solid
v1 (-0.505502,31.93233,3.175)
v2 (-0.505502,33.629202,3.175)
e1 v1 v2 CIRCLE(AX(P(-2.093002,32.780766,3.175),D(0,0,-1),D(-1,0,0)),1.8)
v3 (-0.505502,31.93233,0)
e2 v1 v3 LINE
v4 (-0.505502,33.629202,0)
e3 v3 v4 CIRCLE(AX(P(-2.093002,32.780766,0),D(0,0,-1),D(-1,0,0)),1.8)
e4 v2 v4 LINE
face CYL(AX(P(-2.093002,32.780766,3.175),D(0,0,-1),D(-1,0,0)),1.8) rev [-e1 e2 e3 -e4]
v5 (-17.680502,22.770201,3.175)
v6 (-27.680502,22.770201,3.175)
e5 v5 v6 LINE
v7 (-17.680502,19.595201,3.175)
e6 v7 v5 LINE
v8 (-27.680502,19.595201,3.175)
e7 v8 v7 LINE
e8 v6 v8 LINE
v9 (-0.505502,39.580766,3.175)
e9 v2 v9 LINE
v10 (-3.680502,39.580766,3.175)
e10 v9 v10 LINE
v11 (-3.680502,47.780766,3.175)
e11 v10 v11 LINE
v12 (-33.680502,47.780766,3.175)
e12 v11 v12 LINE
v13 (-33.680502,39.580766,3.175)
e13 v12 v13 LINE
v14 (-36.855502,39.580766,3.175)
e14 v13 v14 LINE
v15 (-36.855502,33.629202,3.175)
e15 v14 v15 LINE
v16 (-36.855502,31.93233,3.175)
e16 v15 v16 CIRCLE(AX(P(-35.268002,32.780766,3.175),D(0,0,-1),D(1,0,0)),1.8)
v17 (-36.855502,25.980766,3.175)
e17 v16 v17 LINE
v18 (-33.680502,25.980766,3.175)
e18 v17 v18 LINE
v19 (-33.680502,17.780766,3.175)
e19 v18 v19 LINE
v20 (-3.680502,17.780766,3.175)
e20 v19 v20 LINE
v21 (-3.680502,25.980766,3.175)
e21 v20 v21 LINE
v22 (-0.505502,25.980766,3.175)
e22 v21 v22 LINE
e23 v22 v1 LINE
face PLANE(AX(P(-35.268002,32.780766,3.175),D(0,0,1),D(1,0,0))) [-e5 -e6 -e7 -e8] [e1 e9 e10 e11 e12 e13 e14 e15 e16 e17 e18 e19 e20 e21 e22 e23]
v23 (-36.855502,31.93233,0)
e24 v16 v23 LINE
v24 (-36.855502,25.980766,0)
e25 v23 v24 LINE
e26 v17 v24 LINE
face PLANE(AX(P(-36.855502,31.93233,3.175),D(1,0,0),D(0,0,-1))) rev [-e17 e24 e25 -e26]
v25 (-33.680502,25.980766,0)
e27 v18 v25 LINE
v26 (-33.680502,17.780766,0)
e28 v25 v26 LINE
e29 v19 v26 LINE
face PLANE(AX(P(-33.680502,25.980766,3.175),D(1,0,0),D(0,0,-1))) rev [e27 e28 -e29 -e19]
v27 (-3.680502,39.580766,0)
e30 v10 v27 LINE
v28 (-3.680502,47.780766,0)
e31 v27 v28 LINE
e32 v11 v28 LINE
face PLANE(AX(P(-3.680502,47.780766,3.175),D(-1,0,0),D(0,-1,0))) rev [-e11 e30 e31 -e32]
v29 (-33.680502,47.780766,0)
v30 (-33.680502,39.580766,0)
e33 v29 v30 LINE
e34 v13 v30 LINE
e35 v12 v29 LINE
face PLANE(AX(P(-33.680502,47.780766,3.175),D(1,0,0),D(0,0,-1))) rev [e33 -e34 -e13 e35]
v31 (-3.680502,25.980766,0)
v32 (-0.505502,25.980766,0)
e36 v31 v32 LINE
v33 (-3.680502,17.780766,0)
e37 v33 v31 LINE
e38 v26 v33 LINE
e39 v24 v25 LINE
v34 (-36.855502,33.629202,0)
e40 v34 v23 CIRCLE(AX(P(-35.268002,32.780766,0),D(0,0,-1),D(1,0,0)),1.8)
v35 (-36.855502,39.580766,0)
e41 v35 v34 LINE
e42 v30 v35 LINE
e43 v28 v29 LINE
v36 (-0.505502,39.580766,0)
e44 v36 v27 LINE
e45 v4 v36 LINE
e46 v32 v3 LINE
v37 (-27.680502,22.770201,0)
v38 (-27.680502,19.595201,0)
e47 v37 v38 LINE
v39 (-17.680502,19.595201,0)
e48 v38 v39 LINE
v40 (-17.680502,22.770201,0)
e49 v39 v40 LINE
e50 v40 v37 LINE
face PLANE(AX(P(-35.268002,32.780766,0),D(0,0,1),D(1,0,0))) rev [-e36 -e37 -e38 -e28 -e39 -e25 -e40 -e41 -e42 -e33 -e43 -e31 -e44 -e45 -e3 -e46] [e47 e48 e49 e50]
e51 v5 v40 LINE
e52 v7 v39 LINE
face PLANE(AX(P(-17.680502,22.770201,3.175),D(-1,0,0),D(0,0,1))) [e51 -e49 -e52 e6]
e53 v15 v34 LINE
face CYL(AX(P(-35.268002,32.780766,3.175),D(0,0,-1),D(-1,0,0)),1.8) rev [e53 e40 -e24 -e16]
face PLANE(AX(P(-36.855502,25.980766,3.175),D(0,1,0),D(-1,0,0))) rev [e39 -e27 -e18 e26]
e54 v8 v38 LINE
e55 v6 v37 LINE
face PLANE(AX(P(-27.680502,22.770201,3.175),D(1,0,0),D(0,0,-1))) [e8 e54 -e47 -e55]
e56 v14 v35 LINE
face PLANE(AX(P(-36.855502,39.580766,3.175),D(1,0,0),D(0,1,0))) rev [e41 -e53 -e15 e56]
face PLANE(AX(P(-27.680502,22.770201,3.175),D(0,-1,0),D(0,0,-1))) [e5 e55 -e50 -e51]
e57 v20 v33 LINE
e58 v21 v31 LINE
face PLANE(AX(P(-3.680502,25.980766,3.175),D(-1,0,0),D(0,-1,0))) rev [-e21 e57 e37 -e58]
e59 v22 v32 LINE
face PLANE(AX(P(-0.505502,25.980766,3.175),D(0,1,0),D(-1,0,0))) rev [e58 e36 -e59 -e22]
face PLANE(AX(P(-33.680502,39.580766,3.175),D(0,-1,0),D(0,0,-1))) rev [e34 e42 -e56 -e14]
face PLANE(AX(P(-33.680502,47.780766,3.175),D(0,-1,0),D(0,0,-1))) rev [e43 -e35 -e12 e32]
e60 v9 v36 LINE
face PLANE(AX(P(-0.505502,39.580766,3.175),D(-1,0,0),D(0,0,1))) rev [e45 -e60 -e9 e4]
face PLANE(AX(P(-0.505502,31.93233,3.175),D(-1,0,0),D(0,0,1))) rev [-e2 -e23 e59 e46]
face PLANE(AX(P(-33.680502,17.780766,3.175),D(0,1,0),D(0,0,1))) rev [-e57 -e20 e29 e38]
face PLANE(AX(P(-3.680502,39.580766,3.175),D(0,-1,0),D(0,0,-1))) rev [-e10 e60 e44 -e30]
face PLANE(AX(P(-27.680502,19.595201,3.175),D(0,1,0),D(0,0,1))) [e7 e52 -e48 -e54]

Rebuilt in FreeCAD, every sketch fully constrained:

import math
import FreeCAD as App
import Part
import Sketcher
from FreeCAD import Vector
Q = App.Units.Quantity


def add_polygon(sketch, points):
    """Adds a closed chain of lines whose ends are joined by coincident constraints."""
    first, n = sketch.GeometryCount, len(points)
    for a, b in zip(points, points[1:] + points[:1]):
        sketch.addGeometry(Part.LineSegment(App.Vector(*a, 0), App.Vector(*b, 0)), False)
    for i in range(n):
        sketch.addConstraint(Sketcher.Constraint("Coincident", first + i, 2, first + (i + 1) % n, 1))

doc = App.newDocument("Part")
body = doc.addObject("PartDesign::Body", "Body")

# Sketch on XY plane
sketch1 = doc.addObject("Sketcher::SketchObject", "Sketch")
body.addObject(sketch1)
sketch1.AttachmentSupport = (doc.XY_Plane, [""])
sketch1.MapMode = "FlatFace"
sketch1.addGeometry(Part.LineSegment(Vector(-33.7, 39.6, 0), Vector(-36.9, 39.6, 0)), False)  # 0
sketch1.addGeometry(Part.LineSegment(Vector(-36.9, 39.6, 0), Vector(-36.9, 33.6, 0)), False)  # 1
sketch1.addGeometry(Part.ArcOfCircle(Part.Circle(Vector(-35.3, 32.8, 0), Vector(0, 0, 1), 1.8), math.radians(-152), math.radians(152)), False)  # 2
sketch1.addGeometry(Part.LineSegment(Vector(-36.9, 31.9, 0), Vector(-36.9, 26, 0)), False)  # 3
sketch1.addGeometry(Part.LineSegment(Vector(-36.9, 26, 0), Vector(-33.7, 26, 0)), False)  # 4
sketch1.addGeometry(Part.LineSegment(Vector(-33.7, 26, 0), Vector(-33.7, 17.8, 0)), False)  # 5
sketch1.addGeometry(Part.LineSegment(Vector(-33.7, 17.8, 0), Vector(-3.7, 17.8, 0)), False)  # 6
sketch1.addGeometry(Part.LineSegment(Vector(-3.7, 17.8, 0), Vector(-3.7, 26, 0)), False)  # 7
sketch1.addGeometry(Part.LineSegment(Vector(-3.7, 26, 0), Vector(-0.5, 26, 0)), False)  # 8
sketch1.addGeometry(Part.LineSegment(Vector(-0.5, 26, 0), Vector(-0.5, 31.9, 0)), False)  # 9
sketch1.addGeometry(Part.ArcOfCircle(Part.Circle(Vector(-2.1, 32.8, 0), Vector(0, 0, 1), 1.8), math.radians(28), math.radians(332)), False)  # 10
sketch1.addGeometry(Part.LineSegment(Vector(-0.5, 33.6, 0), Vector(-0.5, 39.6, 0)), False)  # 11
sketch1.addGeometry(Part.LineSegment(Vector(-0.5, 39.6, 0), Vector(-3.7, 39.6, 0)), False)  # 12
sketch1.addGeometry(Part.LineSegment(Vector(-3.7, 39.6, 0), Vector(-3.7, 47.8, 0)), False)  # 13
sketch1.addGeometry(Part.LineSegment(Vector(-3.7, 47.8, 0), Vector(-33.7, 47.8, 0)), False)  # 14
sketch1.addGeometry(Part.LineSegment(Vector(-33.7, 47.8, 0), Vector(-33.7, 39.6, 0)), False)  # 15
add_polygon(sketch1, [(-17.7, 19.6), (-27.7, 19.6), (-27.7, 22.8), (-17.7, 22.8)])  # lines 16-19
sketch1.addConstraint([
    Sketcher.Constraint("Coincident", 0, 2, 1, 1),
    Sketcher.Constraint("Coincident", 1, 2, 2, 2),
    Sketcher.Constraint("Coincident", 2, 1, 3, 1),
    Sketcher.Constraint("Coincident", 3, 2, 4, 1),
    Sketcher.Constraint("Coincident", 4, 2, 5, 1),
    Sketcher.Constraint("Coincident", 5, 2, 6, 1),
    Sketcher.Constraint("Coincident", 6, 2, 7, 1),
    Sketcher.Constraint("Coincident", 7, 2, 8, 1),
    Sketcher.Constraint("Coincident", 8, 2, 9, 1),
    Sketcher.Constraint("Coincident", 9, 2, 10, 2),
    Sketcher.Constraint("Coincident", 10, 1, 11, 1),
    Sketcher.Constraint("Coincident", 11, 2, 12, 1),
    Sketcher.Constraint("Coincident", 12, 2, 13, 1),
    Sketcher.Constraint("Coincident", 13, 2, 14, 1),
    Sketcher.Constraint("Coincident", 14, 2, 15, 1),
    Sketcher.Constraint("Coincident", 15, 2, 0, 1),
    Sketcher.Constraint("Horizontal", 0),
    Sketcher.Constraint("Vertical", 1),
    Sketcher.Constraint("Vertical", 3),
    Sketcher.Constraint("Horizontal", 4),
    Sketcher.Constraint("Vertical", 5),
    Sketcher.Constraint("Horizontal", 6),
    Sketcher.Constraint("Vertical", 7),
    Sketcher.Constraint("Horizontal", 8),
    Sketcher.Constraint("Vertical", 9),
    Sketcher.Constraint("Vertical", 11),
    Sketcher.Constraint("Horizontal", 12),
    Sketcher.Constraint("Vertical", 13),
    Sketcher.Constraint("Horizontal", 14),
    Sketcher.Constraint("Vertical", 15),
    Sketcher.Constraint("Horizontal", 16),
    Sketcher.Constraint("Vertical", 17),
    Sketcher.Constraint("Horizontal", 18),
    Sketcher.Constraint("Vertical", 19),
    Sketcher.Constraint("Equal", 2, 10),
    Sketcher.Constraint("Horizontal", 2, 3, 10, 3),
    Sketcher.Constraint("Horizontal", 4, 2, 7, 2),
    Sketcher.Constraint("Horizontal", 2, 1, 9, 2),
    Sketcher.Constraint("Horizontal", 1, 2, 10, 1),
    Sketcher.Constraint("Horizontal", 0, 2, 11, 2),
    Sketcher.Constraint("Vertical", 1, 2, 2, 1),
    Sketcher.Constraint("Vertical", 7, 2, 12, 2),
    Sketcher.Constraint("Vertical", 5, 2, 14, 2),
    Sketcher.Constraint("Equal", 4, 8),
    Sketcher.Constraint("Equal", 1, 3),
    Sketcher.Constraint("Equal", 7, 13),
    Sketcher.Constraint("Equal", 12, 17),
    Sketcher.Constraint("Radius", 2, Q("1.8 mm")),
    Sketcher.Constraint("DistanceX", 6, 1, 6, 2, Q("30 mm")),
    Sketcher.Constraint("DistanceX", 16, 2, 16, 1, Q("10 mm")),
    Sketcher.Constraint("DistanceY", 5, 2, 5, 1, Q("8.2 mm")),
    Sketcher.Constraint("DistanceY", 5, 2, 2, 3, Q("15 mm")),
    Sketcher.Constraint("DistanceX", 5, 2, 16, 2, Q("6 mm")),
    Sketcher.Constraint("DistanceX", 0, 2, 0, 1, Q("3.175 mm")),
    Sketcher.Constraint("DistanceX", 2, 3, -1, 1, Q("35.268002 mm")),
    Sketcher.Constraint("DistanceX", 10, 3, -1, 1, Q("2.093002 mm")),
    Sketcher.Constraint("DistanceY", -1, 1, 16, 2, Q("19.595201 mm")),
    Sketcher.Constraint("DistanceY", -1, 1, 2, 1, Q("31.93233 mm")),
])
pad1 = doc.addObject("PartDesign::Pad", "Pad")
body.addObject(pad1)
pad1.Profile = sketch1
pad1.Length = 3.175

doc.recompute()
